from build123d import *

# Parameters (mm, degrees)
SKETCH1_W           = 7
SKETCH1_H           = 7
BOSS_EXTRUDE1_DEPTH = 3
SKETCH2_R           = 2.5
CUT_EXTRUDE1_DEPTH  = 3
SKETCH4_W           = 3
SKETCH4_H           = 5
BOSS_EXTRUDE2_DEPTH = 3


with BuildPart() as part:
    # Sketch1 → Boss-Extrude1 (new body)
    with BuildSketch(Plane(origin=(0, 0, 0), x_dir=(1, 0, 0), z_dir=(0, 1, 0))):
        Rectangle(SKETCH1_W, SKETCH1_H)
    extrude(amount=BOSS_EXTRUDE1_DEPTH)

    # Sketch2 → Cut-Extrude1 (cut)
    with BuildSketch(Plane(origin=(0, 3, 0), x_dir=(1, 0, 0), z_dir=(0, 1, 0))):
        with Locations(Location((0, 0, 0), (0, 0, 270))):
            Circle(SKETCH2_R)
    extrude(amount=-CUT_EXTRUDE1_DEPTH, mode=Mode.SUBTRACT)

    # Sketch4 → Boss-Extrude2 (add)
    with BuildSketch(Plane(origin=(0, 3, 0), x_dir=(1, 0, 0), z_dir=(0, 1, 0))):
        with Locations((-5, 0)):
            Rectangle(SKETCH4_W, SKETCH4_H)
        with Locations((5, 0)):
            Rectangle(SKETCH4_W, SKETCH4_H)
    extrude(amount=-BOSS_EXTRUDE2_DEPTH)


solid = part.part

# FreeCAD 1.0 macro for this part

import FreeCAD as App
import Part
import Sketcher
from FreeCAD import Vector
Q = App.Units.Quantity

doc = App.newDocument("Part")
body = doc.addObject("PartDesign::Body", "Body")

sketch1 = body.newObject("Sketcher::SketchObject", "Sketch")
sketch1.AttachmentSupport = (doc.getObject("XZ_Plane"), [""])
sketch1.MapMode = "FlatFace"
sketch1.addGeometry([
    Part.LineSegment(Vector(-3.5, -3.5, 0), Vector(-3.5, 3.5, 0)),
    Part.LineSegment(Vector(-3.5, 3.5, 0), Vector(3.5, 3.5, 0)),
    Part.LineSegment(Vector(3.5, 3.5, 0), Vector(3.5, -3.5, 0)),
    Part.LineSegment(Vector(3.5, -3.5, 0), Vector(-3.5, -3.5, 0)),
], False)
sketch1.addConstraint([
    Sketcher.Constraint("Coincident", 0, 2, 1, 1),
    Sketcher.Constraint("Coincident", 1, 2, 2, 1),
    Sketcher.Constraint("Coincident", 2, 2, 3, 1),
    Sketcher.Constraint("Coincident", 3, 2, 0, 1),
    Sketcher.Constraint("Vertical", 0),
    Sketcher.Constraint("Horizontal", 1),
    Sketcher.Constraint("Vertical", 2),
    Sketcher.Constraint("Horizontal", 3),
    Sketcher.Constraint("Symmetric", 0, 2, 2, 2, -1, 1),
    Sketcher.Constraint("Equal", 3, 0),
    Sketcher.Constraint("DistanceX", 1, 1, 1, 2, Q("7 mm")),
])
pad1 = body.newObject("PartDesign::Pad", "Pad")
pad1.Profile = sketch1
pad1.Length = 3
pad1.Reversed = True

sketch2 = body.newObject("Sketcher::SketchObject", "Sketch001")
sketch2.AttachmentSupport = (doc.getObject("XZ_Plane"), [""])
sketch2.MapMode = "FlatFace"
sketch2.AttachmentOffset = App.Placement(Vector(0, 0, -3), App.Rotation())
sketch2.addGeometry(Part.Circle(Vector(0, 0, 0), Vector(0, 0, 1), 2.5), False)
sketch2.addConstraint([
    Sketcher.Constraint("Coincident", 0, 3, -1, 1),
    Sketcher.Constraint("Diameter", 0, Q("5 mm")),
])
pocket1 = body.newObject("PartDesign::Pocket", "Pocket")
pocket1.Profile = sketch2
pocket1.Length = 3
pocket1.Reversed = True

sketch3 = body.newObject("Sketcher::SketchObject", "Sketch002")
sketch3.AttachmentSupport = (doc.getObject("XZ_Plane"), [""])
sketch3.MapMode = "FlatFace"
sketch3.AttachmentOffset = App.Placement(Vector(0, 0, -3), App.Rotation())
sketch3.addGeometry([
    Part.LineSegment(Vector(-6.5, -2.5, 0), Vector(-6.5, 2.5, 0)),
    Part.LineSegment(Vector(-6.5, 2.5, 0), Vector(-3.5, 2.5, 0)),
    Part.LineSegment(Vector(-3.5, 2.5, 0), Vector(-3.5, -2.5, 0)),
    Part.LineSegment(Vector(-3.5, -2.5, 0), Vector(-6.5, -2.5, 0)),
    Part.LineSegment(Vector(3.5, -2.5, 0), Vector(3.5, 2.5, 0)),
    Part.LineSegment(Vector(3.5, 2.5, 0), Vector(6.5, 2.5, 0)),
    Part.LineSegment(Vector(6.5, 2.5, 0), Vector(6.5, -2.5, 0)),
    Part.LineSegment(Vector(6.5, -2.5, 0), Vector(3.5, -2.5, 0)),
], False)
sketch3.addConstraint([
    Sketcher.Constraint("Coincident", 0, 2, 1, 1),
    Sketcher.Constraint("Coincident", 1, 2, 2, 1),
    Sketcher.Constraint("Coincident", 2, 2, 3, 1),
    Sketcher.Constraint("Coincident", 3, 2, 0, 1),
    Sketcher.Constraint("Coincident", 4, 2, 5, 1),
    Sketcher.Constraint("Coincident", 5, 2, 6, 1),
    Sketcher.Constraint("Coincident", 6, 2, 7, 1),
    Sketcher.Constraint("Coincident", 7, 2, 4, 1),
    Sketcher.Constraint("Vertical", 0),
    Sketcher.Constraint("Horizontal", 1),
    Sketcher.Constraint("Vertical", 2),
    Sketcher.Constraint("Horizontal", 3),
    Sketcher.Constraint("Vertical", 4),
    Sketcher.Constraint("Horizontal", 5),
    Sketcher.Constraint("Vertical", 6),
    Sketcher.Constraint("Horizontal", 7),
    Sketcher.Constraint("Symmetric", 2, 2, 4, 2, -1, 1),
    Sketcher.Constraint("Symmetric", 0, 2, 6, 2, -1, 1),
    Sketcher.Constraint("Horizontal", 1, 2, 4, 2),
    Sketcher.Constraint("DistanceX", 1, 1, 1, 2, Q("3 mm")),
    Sketcher.Constraint("DistanceY", 0, 1, 0, 2, Q("5 mm")),
    Sketcher.Constraint("DistanceX", 1, 2, 4, 2, Q("7 mm")),
])
pad2 = body.newObject("PartDesign::Pad", "Pad001")
pad2.Profile = sketch3
pad2.Length = 3

doc.recompute()
